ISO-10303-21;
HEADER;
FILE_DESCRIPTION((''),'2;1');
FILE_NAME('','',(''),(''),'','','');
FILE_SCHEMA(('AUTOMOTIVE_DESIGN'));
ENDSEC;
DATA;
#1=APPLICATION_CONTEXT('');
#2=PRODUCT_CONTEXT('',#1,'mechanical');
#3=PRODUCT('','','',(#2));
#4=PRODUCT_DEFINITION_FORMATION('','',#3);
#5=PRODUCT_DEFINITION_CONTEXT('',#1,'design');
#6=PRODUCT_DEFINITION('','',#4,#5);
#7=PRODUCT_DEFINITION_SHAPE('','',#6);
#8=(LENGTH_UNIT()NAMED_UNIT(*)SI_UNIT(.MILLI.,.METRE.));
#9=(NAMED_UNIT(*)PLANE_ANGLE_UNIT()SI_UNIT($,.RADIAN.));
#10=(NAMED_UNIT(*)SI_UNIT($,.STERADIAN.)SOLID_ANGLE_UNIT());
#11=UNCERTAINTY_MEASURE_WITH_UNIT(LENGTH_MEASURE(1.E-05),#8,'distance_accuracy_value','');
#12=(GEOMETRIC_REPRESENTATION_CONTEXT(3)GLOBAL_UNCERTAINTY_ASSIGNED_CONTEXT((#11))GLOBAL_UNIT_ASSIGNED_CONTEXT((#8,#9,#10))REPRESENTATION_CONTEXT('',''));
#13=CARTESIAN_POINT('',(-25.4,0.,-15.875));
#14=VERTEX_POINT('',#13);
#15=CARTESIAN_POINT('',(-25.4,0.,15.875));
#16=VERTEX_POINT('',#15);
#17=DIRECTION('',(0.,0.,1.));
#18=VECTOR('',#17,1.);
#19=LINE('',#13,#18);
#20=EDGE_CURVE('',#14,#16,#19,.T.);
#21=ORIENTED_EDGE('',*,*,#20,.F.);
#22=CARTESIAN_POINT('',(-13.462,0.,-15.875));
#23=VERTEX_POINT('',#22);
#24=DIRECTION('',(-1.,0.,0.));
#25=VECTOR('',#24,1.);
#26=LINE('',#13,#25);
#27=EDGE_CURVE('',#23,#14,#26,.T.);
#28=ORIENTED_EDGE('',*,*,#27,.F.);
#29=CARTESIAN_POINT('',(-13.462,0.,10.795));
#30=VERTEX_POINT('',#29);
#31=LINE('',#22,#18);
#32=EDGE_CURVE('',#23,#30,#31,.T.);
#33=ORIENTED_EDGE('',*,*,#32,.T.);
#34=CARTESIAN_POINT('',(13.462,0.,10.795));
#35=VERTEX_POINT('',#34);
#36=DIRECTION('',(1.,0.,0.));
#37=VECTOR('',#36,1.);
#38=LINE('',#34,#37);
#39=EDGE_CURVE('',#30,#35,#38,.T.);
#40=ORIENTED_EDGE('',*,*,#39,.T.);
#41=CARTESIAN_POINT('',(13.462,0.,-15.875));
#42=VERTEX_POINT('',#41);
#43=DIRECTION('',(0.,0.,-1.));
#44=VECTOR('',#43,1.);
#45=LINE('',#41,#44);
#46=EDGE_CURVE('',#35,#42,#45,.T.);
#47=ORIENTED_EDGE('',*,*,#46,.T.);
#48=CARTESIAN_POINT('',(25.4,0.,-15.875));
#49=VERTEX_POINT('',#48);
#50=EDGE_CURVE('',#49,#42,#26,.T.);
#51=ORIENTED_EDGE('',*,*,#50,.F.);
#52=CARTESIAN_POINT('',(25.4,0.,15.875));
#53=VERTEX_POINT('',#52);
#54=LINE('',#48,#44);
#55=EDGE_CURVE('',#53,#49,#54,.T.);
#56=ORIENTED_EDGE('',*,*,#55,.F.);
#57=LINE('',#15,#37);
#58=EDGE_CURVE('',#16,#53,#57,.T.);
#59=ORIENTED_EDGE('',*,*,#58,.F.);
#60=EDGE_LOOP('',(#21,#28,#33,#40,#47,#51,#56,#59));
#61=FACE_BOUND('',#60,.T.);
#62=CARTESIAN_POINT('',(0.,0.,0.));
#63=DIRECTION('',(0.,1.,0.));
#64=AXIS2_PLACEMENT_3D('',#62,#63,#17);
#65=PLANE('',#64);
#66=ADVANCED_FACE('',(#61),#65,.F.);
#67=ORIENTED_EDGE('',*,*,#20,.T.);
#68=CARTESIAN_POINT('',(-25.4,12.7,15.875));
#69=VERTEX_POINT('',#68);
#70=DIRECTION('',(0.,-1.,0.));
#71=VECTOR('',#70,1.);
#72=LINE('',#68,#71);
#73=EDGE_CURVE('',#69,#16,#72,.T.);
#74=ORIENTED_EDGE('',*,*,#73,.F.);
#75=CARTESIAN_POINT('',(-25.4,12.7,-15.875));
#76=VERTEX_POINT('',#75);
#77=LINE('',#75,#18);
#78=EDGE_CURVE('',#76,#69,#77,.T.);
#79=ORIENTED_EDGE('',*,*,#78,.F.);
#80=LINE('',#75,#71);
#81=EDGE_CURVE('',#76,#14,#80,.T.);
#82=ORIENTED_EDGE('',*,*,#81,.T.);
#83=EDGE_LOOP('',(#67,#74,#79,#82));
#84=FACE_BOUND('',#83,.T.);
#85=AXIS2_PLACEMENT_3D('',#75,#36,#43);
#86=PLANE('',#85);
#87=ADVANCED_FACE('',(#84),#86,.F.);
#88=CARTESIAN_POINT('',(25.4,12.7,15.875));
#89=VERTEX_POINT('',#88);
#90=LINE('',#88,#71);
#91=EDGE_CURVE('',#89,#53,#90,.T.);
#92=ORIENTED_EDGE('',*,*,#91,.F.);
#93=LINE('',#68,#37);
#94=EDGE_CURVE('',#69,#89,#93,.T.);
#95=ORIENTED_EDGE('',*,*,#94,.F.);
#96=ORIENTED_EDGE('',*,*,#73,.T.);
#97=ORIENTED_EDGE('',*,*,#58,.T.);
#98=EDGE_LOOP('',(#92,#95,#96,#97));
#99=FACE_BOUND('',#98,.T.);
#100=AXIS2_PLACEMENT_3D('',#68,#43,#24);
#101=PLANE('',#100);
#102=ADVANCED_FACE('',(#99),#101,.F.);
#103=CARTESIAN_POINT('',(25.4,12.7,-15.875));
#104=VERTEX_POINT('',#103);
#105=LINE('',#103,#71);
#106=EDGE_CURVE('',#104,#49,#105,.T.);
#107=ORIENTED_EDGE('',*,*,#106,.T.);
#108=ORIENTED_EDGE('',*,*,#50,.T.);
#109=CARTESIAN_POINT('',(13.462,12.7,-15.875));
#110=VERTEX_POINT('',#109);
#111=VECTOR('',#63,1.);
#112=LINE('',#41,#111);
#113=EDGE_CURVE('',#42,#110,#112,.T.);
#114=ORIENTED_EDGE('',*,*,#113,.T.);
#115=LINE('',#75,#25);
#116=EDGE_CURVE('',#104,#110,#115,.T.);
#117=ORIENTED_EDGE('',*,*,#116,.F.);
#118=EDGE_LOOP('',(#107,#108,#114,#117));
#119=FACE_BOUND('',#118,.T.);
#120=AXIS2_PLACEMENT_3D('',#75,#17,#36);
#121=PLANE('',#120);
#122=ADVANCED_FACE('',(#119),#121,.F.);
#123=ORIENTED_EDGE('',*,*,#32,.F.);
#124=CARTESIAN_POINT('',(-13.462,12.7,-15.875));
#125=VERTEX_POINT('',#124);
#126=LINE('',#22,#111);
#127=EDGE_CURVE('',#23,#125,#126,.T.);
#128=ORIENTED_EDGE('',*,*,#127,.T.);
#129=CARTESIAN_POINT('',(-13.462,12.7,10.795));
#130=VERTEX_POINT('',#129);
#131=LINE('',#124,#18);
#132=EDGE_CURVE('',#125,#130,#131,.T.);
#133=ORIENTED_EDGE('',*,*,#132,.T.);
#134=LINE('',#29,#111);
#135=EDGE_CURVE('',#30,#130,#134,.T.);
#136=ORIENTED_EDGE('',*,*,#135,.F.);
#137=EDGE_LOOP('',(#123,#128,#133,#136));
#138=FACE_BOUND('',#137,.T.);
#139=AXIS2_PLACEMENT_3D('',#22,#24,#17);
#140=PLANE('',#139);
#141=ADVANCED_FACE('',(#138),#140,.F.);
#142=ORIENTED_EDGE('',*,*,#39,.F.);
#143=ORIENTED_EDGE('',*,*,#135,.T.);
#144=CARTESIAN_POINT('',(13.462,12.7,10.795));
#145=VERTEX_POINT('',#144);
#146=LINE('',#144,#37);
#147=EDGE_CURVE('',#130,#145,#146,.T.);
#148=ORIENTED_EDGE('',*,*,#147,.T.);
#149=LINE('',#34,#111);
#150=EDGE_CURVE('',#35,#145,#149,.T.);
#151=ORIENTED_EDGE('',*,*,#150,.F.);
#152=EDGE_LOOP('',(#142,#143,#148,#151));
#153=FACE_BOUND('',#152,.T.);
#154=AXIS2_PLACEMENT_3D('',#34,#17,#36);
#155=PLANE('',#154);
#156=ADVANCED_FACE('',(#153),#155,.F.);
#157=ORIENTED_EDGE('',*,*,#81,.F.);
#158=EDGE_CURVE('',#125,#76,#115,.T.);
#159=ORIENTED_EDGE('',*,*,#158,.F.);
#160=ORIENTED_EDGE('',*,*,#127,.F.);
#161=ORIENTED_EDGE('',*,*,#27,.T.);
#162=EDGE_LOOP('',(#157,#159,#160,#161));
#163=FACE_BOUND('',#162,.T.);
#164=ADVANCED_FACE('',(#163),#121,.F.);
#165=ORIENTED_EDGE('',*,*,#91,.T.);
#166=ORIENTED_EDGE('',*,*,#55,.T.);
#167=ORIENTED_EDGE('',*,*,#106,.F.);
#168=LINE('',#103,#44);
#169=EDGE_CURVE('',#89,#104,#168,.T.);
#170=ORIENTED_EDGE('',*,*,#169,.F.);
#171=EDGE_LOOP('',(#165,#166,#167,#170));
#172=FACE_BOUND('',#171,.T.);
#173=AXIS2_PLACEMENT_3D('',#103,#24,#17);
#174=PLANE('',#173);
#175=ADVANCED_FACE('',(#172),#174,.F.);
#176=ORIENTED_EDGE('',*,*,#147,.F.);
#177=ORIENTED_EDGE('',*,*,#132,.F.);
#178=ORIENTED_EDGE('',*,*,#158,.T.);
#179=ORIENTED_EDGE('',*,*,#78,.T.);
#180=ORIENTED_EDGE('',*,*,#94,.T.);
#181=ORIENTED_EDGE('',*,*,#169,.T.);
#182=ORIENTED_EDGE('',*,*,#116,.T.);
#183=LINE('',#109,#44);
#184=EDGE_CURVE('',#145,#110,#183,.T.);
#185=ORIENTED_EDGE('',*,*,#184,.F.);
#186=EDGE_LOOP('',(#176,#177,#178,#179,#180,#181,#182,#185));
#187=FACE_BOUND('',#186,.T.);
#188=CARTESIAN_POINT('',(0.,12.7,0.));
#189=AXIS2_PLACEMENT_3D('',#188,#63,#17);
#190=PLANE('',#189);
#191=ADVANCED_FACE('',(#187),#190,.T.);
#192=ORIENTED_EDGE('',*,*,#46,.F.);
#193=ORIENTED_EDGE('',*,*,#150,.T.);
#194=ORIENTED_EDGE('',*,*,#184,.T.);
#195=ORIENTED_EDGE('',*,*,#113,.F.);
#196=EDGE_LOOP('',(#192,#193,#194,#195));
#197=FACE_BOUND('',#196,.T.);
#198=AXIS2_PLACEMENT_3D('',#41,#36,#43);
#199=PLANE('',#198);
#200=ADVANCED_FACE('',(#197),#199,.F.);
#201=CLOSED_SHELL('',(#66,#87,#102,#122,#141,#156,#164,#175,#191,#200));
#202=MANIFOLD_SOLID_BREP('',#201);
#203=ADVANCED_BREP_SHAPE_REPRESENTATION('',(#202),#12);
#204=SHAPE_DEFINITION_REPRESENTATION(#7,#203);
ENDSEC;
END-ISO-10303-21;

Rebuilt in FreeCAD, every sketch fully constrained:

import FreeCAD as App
import Part
import Sketcher
from FreeCAD import Vector
Q = App.Units.Quantity


def add_polygon(sketch, points):
    """Adds a closed chain of lines whose ends are joined by coincident constraints."""
    first, n = sketch.GeometryCount, len(points)
    for a, b in zip(points, points[1:] + points[:1]):
        sketch.addGeometry(Part.LineSegment(App.Vector(*a, 0), App.Vector(*b, 0)), False)
    for i in range(n):
        sketch.addConstraint(Sketcher.Constraint("Coincident", first + i, 2, first + (i + 1) % n, 1))

doc = App.newDocument("Part")
params = doc.addObject("Spreadsheet::Sheet", "Params")
for row, (alias, value) in enumerate([
    ("sketch1_width", "2 in"),
    ("sketch1_height", "1.25 in"),
    ("pad1_length", "0.5 in"),
    ("sketch2_width", "1.06 in"),
    ("sketch2_height", "1.05 in"),
    ("pocket1_length", "0.5 in"),
], start=1):
    params.set(f"A{row}", alias)
    params.set(f"B{row}", "=" + value)
    params.setAlias(f"B{row}", alias)

body = doc.addObject("PartDesign::Body", "Body")

# Sketch on XZ plane
sketch1 = body.newObject("Sketcher::SketchObject", "Sketch")
sketch1.AttachmentSupport = (doc.getObject("XZ_Plane"), [""])
sketch1.MapMode = "FlatFace"
add_polygon(sketch1, [(-25, -16), (-25, 16), (25, 16), (25, -16)])  # lines 0-3
sketch1.addConstraint([
    Sketcher.Constraint("Vertical", 0),
    Sketcher.Constraint("Horizontal", 1),
    Sketcher.Constraint("Vertical", 2),
    Sketcher.Constraint("Horizontal", 3),
    Sketcher.Constraint("Symmetric", 0, 2, 2, 2, -1, 1),
    Sketcher.Constraint("DistanceX", 1, 1, 1, 2, Q("2 in")),
    Sketcher.Constraint("DistanceY", 0, 1, 0, 2, Q("1.25 in")),
])
sketch1.setExpression("Constraints[9]", "Params.sketch1_width")
sketch1.setExpression("Constraints[10]", "Params.sketch1_height")
pad1 = body.newObject("PartDesign::Pad", "Pad")
pad1.Profile = sketch1
pad1.setExpression("Length", "Params.pad1_length")
pad1.Reversed = True

# Sketch on XZ plane
sketch2 = body.newObject("Sketcher::SketchObject", "Sketch001")
sketch2.AttachmentSupport = (doc.getObject("XZ_Plane"), [""])
sketch2.MapMode = "FlatFace"
sketch2.AttachmentOffset = App.Placement(Vector(0, 0, -0.5 * 25.4), App.Rotation())
add_polygon(sketch2, [(-13, -16), (-13, 11), (13, 11), (13, -16)])  # lines 0-3
sketch2.addConstraint([
    Sketcher.Constraint("Vertical", 0),
    Sketcher.Constraint("Horizontal", 1),
    Sketcher.Constraint("Vertical", 2),
    Sketcher.Constraint("Horizontal", 3),
    Sketcher.Constraint("DistanceX", 1, 1, 1, 2, Q("1.06 in")),
    Sketcher.Constraint("DistanceY", 0, 1, 0, 2, Q("1.05 in")),
    Sketcher.Constraint("DistanceX", 0, 2, -1, 1, Q("0.53 in")),
    Sketcher.Constraint("DistanceY", -1, 1, 0, 2, Q("0.425 in")),
])
sketch2.setExpression("Constraints[8]", "Params.sketch2_width")
sketch2.setExpression("Constraints[9]", "Params.sketch2_height")
pocket1 = body.newObject("PartDesign::Pocket", "Pocket")
pocket1.Profile = sketch2
pocket1.setExpression("Length", "Params.pocket1_length")
pocket1.Reversed = True

doc.recompute()
